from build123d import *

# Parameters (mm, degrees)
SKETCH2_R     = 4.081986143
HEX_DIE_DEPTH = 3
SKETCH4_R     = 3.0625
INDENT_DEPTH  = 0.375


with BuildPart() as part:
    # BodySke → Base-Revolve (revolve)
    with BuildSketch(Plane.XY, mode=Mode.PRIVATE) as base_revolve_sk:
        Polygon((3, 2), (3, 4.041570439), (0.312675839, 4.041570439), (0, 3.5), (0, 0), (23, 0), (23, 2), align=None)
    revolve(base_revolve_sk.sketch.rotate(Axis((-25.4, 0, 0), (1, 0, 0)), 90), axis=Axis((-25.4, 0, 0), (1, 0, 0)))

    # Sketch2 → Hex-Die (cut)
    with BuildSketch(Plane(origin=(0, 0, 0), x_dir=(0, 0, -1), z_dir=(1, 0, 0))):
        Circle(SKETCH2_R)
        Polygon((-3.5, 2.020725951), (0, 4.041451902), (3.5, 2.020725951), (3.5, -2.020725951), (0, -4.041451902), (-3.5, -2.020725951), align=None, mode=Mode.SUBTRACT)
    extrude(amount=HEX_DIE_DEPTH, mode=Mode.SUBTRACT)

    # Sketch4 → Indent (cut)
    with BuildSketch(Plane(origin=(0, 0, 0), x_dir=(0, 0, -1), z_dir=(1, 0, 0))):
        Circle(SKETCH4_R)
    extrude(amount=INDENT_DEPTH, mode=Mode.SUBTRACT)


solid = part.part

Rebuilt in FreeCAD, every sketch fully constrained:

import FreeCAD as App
import Part
import Sketcher
Q = App.Units.Quantity

doc = App.newDocument("Part")
body = doc.addObject("PartDesign::Body", "Body")

# Sketch on XY plane
sketch1 = body.newObject("Sketcher::SketchObject", "Sketch")
sketch1.AttachmentSupport = (doc.getObject("XY_Plane"), [""])
sketch1.MapMode = "FlatFace"
sketch1.addGeometry([
    Part.LineSegment(App.Vector(3, 2, 0), App.Vector(3, 4, 0)),  # 0
    Part.LineSegment(App.Vector(3, 4, 0), App.Vector(0.3, 4, 0)),  # 1
    Part.LineSegment(App.Vector(0.3, 4, 0), App.Vector(0, 3.5, 0)),  # 2
    Part.LineSegment(App.Vector(0, 3.5, 0), App.Vector(0, 0, 0)),  # 3
    Part.LineSegment(App.Vector(0, 0, 0), App.Vector(23, 0, 0)),  # 4
    Part.LineSegment(App.Vector(23, 0, 0), App.Vector(23, 2, 0)),  # 5
    Part.LineSegment(App.Vector(23, 2, 0), App.Vector(3, 2, 0)),  # 6
], False)
sketch1.addConstraint([
    Sketcher.Constraint("Coincident", 0, 2, 1, 1),
    Sketcher.Constraint("Coincident", 1, 2, 2, 1),
    Sketcher.Constraint("Coincident", 2, 2, 3, 1),
    Sketcher.Constraint("Coincident", 3, 2, 4, 1),
    Sketcher.Constraint("Coincident", 4, 2, 5, 1),
    Sketcher.Constraint("Coincident", 5, 2, 6, 1),
    Sketcher.Constraint("Coincident", 6, 2, 0, 1),
    Sketcher.Constraint("Vertical", 0),
    Sketcher.Constraint("Horizontal", 1),
    Sketcher.Constraint("Vertical", 3),
    Sketcher.Constraint("Horizontal", 4),
    Sketcher.Constraint("Vertical", 5),
    Sketcher.Constraint("Horizontal", 6),
    Sketcher.Constraint("Coincident", 3, 2, -1, 1),
    Sketcher.Constraint("DistanceX", 4, 1, 4, 2, 23.0),
    Sketcher.Constraint("DistanceX", 6, 2, 6, 1, 20.0),
    Sketcher.Constraint("DistanceY", 5, 1, 5, 2, 2.0),
    Sketcher.Constraint("Angle", 2, Q("-120 deg")),
    Sketcher.Constraint("DistanceY", 3, 2, 3, 1, 3.5),
    Sketcher.Constraint("DistanceY", 0, 1, 0, 2, 2.04157),
])
revolution = body.newObject("PartDesign::Revolution", "Revolution")
revolution.Profile = sketch1
revolution.ReferenceAxis = (sketch1, ["H_Axis"])
revolution.Angle = 360

# Sketch on YZ plane
sketch2 = body.newObject("Sketcher::SketchObject", "Sketch001")
sketch2.AttachmentSupport = (doc.getObject("YZ_Plane"), [""])
sketch2.MapMode = "FlatFace"
sketch2.addGeometry([
    Part.Circle(App.Vector(0, 0, 0), App.Vector(0, 0, 1), 4.1),  # 0
    Part.LineSegment(App.Vector(-2, 3.5, 0), App.Vector(2, 3.5, 0)),  # 1
    Part.LineSegment(App.Vector(2, 3.5, 0), App.Vector(4, 0, 0)),  # 2
    Part.LineSegment(App.Vector(4, 0, 0), App.Vector(2, -3.5, 0)),  # 3
    Part.LineSegment(App.Vector(2, -3.5, 0), App.Vector(-2, -3.5, 0)),  # 4
    Part.LineSegment(App.Vector(-2, -3.5, 0), App.Vector(-4, 0, 0)),  # 5
    Part.LineSegment(App.Vector(-4, 0, 0), App.Vector(-2, 3.5, 0)),  # 6
], False)
sketch2.addConstraint([
    Sketcher.Constraint("Coincident", 1, 2, 2, 1),
    Sketcher.Constraint("Coincident", 2, 2, 3, 1),
    Sketcher.Constraint("Coincident", 3, 2, 4, 1),
    Sketcher.Constraint("Coincident", 4, 2, 5, 1),
    Sketcher.Constraint("Coincident", 5, 2, 6, 1),
    Sketcher.Constraint("Coincident", 6, 2, 1, 1),
    Sketcher.Constraint("Horizontal", 1),
    Sketcher.Constraint("Horizontal", 4),
    Sketcher.Constraint("Coincident", 0, 3, -1, 1),
    Sketcher.Constraint("Symmetric", 1, 2, 4, 2, -1, 1),
    Sketcher.Constraint("Symmetric", 2, 2, 5, 2, -1, 1),
    Sketcher.Constraint("PointOnObject", 2, 2, -1),
    Sketcher.Constraint("Parallel", 3, 6),
    Sketcher.Constraint("Vertical", 1, 2, 3, 2),
    Sketcher.Constraint("Angle", 2, Q("-60 deg")),
    Sketcher.Constraint("DistanceY", 3, 2, 1, 2, 7.0),
    Sketcher.Constraint("Diameter", 0, 8.163972),
    Sketcher.Constraint("DistanceX", 1, 1, 1, 2, 4.041452),
])
pocket1 = body.newObject("PartDesign::Pocket", "Pocket")
pocket1.Profile = sketch2
pocket1.Length = 3
pocket1.Reversed = True

# Sketch on YZ plane
sketch3 = body.newObject("Sketcher::SketchObject", "Sketch002")
sketch3.AttachmentSupport = (doc.getObject("YZ_Plane"), [""])
sketch3.MapMode = "FlatFace"
sketch3.addGeometry(Part.Circle(App.Vector(0, 0, 0), App.Vector(0, 0, 1), 3.1), False)
sketch3.addConstraint([
    Sketcher.Constraint("Coincident", 0, 3, -1, 1),
    Sketcher.Constraint("Diameter", 0, 6.125),
])
pocket2 = body.newObject("PartDesign::Pocket", "Pocket001")
pocket2.Profile = sketch3
pocket2.Length = 0.375
pocket2.Reversed = True

doc.recompute()
